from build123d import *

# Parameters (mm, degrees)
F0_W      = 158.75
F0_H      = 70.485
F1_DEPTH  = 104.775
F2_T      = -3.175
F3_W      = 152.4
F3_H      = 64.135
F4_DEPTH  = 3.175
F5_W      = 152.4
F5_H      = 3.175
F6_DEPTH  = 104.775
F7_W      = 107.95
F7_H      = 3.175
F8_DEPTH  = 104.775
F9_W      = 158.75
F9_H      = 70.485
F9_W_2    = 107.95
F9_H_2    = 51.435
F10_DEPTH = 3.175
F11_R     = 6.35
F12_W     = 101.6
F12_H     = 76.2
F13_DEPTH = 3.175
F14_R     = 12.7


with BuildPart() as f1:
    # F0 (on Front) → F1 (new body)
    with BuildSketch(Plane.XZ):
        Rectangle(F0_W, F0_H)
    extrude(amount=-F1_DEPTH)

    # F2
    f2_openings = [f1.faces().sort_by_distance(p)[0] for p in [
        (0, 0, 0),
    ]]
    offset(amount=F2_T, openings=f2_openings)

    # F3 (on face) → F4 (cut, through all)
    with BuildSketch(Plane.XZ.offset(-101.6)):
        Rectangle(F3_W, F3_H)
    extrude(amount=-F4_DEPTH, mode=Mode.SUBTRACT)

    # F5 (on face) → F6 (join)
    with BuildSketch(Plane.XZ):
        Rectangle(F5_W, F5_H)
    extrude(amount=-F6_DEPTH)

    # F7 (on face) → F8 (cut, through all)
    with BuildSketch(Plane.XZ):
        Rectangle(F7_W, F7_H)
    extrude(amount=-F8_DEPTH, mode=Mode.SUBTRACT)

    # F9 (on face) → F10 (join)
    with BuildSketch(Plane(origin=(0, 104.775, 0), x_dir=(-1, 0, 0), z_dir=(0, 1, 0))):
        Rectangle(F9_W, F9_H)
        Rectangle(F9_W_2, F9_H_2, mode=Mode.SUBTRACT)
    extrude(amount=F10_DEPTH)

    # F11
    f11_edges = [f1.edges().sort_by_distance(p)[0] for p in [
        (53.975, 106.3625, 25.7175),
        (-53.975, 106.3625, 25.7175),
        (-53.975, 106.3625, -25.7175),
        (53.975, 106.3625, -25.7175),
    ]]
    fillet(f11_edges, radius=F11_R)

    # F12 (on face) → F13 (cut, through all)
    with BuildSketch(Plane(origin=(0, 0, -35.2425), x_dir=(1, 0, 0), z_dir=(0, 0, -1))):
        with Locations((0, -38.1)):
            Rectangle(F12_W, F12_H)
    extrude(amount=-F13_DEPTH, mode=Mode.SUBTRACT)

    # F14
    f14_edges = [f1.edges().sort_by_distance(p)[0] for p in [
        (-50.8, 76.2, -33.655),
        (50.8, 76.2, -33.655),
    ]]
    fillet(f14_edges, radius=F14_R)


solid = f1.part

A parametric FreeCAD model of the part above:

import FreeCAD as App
import Part
import Sketcher
from FreeCAD import Vector
Q = App.Units.Quantity


def edges_at(feature, points):
    """Names of the edges that pass closest to the given points."""
    edges = feature.Shape.Edges
    near = lambda p: min(range(len(edges)), key=lambda i: edges[i].distToShape(Part.Vertex(*p))[0])
    return sorted({f"Edge{near(p) + 1}" for p in points})


def faces_at(feature, points):
    """Names of the faces that lie closest to the given points."""
    faces = feature.Shape.Faces
    near = lambda p: min(range(len(faces)), key=lambda i: faces[i].distToShape(Part.Vertex(*p))[0])
    return sorted({f"Face{near(p) + 1}" for p in points})

doc = App.newDocument("Part")
body = doc.addObject("PartDesign::Body", "Body")

# Sketch on XZ plane
sketch1 = body.newObject("Sketcher::SketchObject", "Sketch")
sketch1.AttachmentSupport = (doc.getObject("XZ_Plane"), [""])
sketch1.MapMode = "FlatFace"
sketch1.addGeometry(Part.LineSegment(Vector(-79.375, 35.2425, 0), Vector(-79.375, -35.2425, 0)), False)
sketch1.addGeometry(Part.LineSegment(Vector(-79.375, -35.2425, 0), Vector(79.375, -35.2425, 0)), False)
sketch1.addGeometry(Part.LineSegment(Vector(79.375, -35.2425, 0), Vector(79.375, 35.2425, 0)), False)
sketch1.addGeometry(Part.LineSegment(Vector(79.375, 35.2425, 0), Vector(-79.375, 35.2425, 0)), False)
sketch1.addConstraint(Sketcher.Constraint("Coincident", 0, 2, 1, 1))
sketch1.addConstraint(Sketcher.Constraint("Coincident", 1, 2, 2, 1))
sketch1.addConstraint(Sketcher.Constraint("Coincident", 2, 2, 3, 1))
sketch1.addConstraint(Sketcher.Constraint("Coincident", 3, 2, 0, 1))
sketch1.addConstraint(Sketcher.Constraint("Vertical", 0))
sketch1.addConstraint(Sketcher.Constraint("Horizontal", 1))
sketch1.addConstraint(Sketcher.Constraint("Vertical", 2))
sketch1.addConstraint(Sketcher.Constraint("Horizontal", 3))
sketch1.addConstraint(Sketcher.Constraint("Symmetric", 0, 2, 2, 2, -1, 1))
sketch1.addConstraint(Sketcher.Constraint("DistanceX", 1, 1, 1, 2, Q("6.25 in")))
sketch1.addConstraint(Sketcher.Constraint("DistanceY", 0, 2, 0, 1, Q("2.775 in")))
pad1 = body.newObject("PartDesign::Pad", "Pad")
pad1.Profile = sketch1
pad1.Length = Q("4.125 in")
pad1.Reversed = True
doc.recompute()

thickness = body.newObject("PartDesign::Thickness", "Thickness")
thickness.Base = (pad1, faces_at(pad1, [(0, 0, 0)]))
thickness.Value = Q("0.125 in")
thickness.Reversed = True
thickness.Join = "Arc"

# Sketch on XZ plane
sketch2 = body.newObject("Sketcher::SketchObject", "Sketch001")
sketch2.AttachmentSupport = (doc.getObject("XZ_Plane"), [""])
sketch2.MapMode = "FlatFace"
sketch2.AttachmentOffset = App.Placement(Vector(0, 0, -4 * 25.4), App.Rotation())
sketch2.addGeometry(Part.LineSegment(Vector(-76.2, 32.0675, 0), Vector(-76.2, -32.0675, 0)), False)
sketch2.addGeometry(Part.LineSegment(Vector(-76.2, -32.0675, 0), Vector(76.2, -32.0675, 0)), False)
sketch2.addGeometry(Part.LineSegment(Vector(76.2, -32.0675, 0), Vector(76.2, 32.0675, 0)), False)
sketch2.addGeometry(Part.LineSegment(Vector(76.2, 32.0675, 0), Vector(-76.2, 32.0675, 0)), False)
sketch2.addConstraint(Sketcher.Constraint("Coincident", 0, 2, 1, 1))
sketch2.addConstraint(Sketcher.Constraint("Coincident", 1, 2, 2, 1))
sketch2.addConstraint(Sketcher.Constraint("Coincident", 2, 2, 3, 1))
sketch2.addConstraint(Sketcher.Constraint("Coincident", 3, 2, 0, 1))
sketch2.addConstraint(Sketcher.Constraint("Vertical", 0))
sketch2.addConstraint(Sketcher.Constraint("Horizontal", 1))
sketch2.addConstraint(Sketcher.Constraint("Vertical", 2))
sketch2.addConstraint(Sketcher.Constraint("Horizontal", 3))
sketch2.addConstraint(Sketcher.Constraint("Symmetric", 0, 2, 2, 2, -1, 1))
sketch2.addConstraint(Sketcher.Constraint("DistanceX", 1, 1, 1, 2, Q("6 in")))
sketch2.addConstraint(Sketcher.Constraint("DistanceY", 0, 2, 0, 1, Q("2.525 in")))
pocket1 = body.newObject("PartDesign::Pocket", "Pocket")
pocket1.Profile = sketch2
pocket1.Type = "ThroughAll"

# Sketch on XZ plane
sketch3 = body.newObject("Sketcher::SketchObject", "Sketch002")
sketch3.AttachmentSupport = (doc.getObject("XZ_Plane"), [""])
sketch3.MapMode = "FlatFace"
sketch3.addGeometry(Part.LineSegment(Vector(-76.2, 1.5875, 0), Vector(-76.2, -1.5875, 0)), False)
sketch3.addGeometry(Part.LineSegment(Vector(-76.2, -1.5875, 0), Vector(76.2, -1.5875, 0)), False)
sketch3.addGeometry(Part.LineSegment(Vector(76.2, -1.5875, 0), Vector(76.2, 1.5875, 0)), False)
sketch3.addGeometry(Part.LineSegment(Vector(76.2, 1.5875, 0), Vector(-76.2, 1.5875, 0)), False)
sketch3.addConstraint(Sketcher.Constraint("Coincident", 0, 2, 1, 1))
sketch3.addConstraint(Sketcher.Constraint("Coincident", 1, 2, 2, 1))
sketch3.addConstraint(Sketcher.Constraint("Coincident", 2, 2, 3, 1))
sketch3.addConstraint(Sketcher.Constraint("Coincident", 3, 2, 0, 1))
sketch3.addConstraint(Sketcher.Constraint("Vertical", 0))
sketch3.addConstraint(Sketcher.Constraint("Horizontal", 1))
sketch3.addConstraint(Sketcher.Constraint("Vertical", 2))
sketch3.addConstraint(Sketcher.Constraint("Horizontal", 3))
sketch3.addConstraint(Sketcher.Constraint("Symmetric", 0, 2, 2, 2, -1, 1))
sketch3.addConstraint(Sketcher.Constraint("DistanceX", 1, 1, 1, 2, Q("6 in")))
sketch3.addConstraint(Sketcher.Constraint("DistanceY", 0, 2, 0, 1, Q("0.125 in")))
pad2 = body.newObject("PartDesign::Pad", "Pad001")
pad2.Profile = sketch3
pad2.Length = Q("4.125 in")
pad2.Reversed = True

# Sketch on XZ plane
sketch4 = body.newObject("Sketcher::SketchObject", "Sketch003")
sketch4.AttachmentSupport = (doc.getObject("XZ_Plane"), [""])
sketch4.MapMode = "FlatFace"
sketch4.addGeometry(Part.LineSegment(Vector(-53.975, 1.5875, 0), Vector(-53.975, -1.5875, 0)), False)
sketch4.addGeometry(Part.LineSegment(Vector(-53.975, -1.5875, 0), Vector(53.975, -1.5875, 0)), False)
sketch4.addGeometry(Part.LineSegment(Vector(53.975, -1.5875, 0), Vector(53.975, 1.5875, 0)), False)
sketch4.addGeometry(Part.LineSegment(Vector(53.975, 1.5875, 0), Vector(-53.975, 1.5875, 0)), False)
sketch4.addConstraint(Sketcher.Constraint("Coincident", 0, 2, 1, 1))
sketch4.addConstraint(Sketcher.Constraint("Coincident", 1, 2, 2, 1))
sketch4.addConstraint(Sketcher.Constraint("Coincident", 2, 2, 3, 1))
sketch4.addConstraint(Sketcher.Constraint("Coincident", 3, 2, 0, 1))
sketch4.addConstraint(Sketcher.Constraint("Vertical", 0))
sketch4.addConstraint(Sketcher.Constraint("Horizontal", 1))
sketch4.addConstraint(Sketcher.Constraint("Vertical", 2))
sketch4.addConstraint(Sketcher.Constraint("Horizontal", 3))
sketch4.addConstraint(Sketcher.Constraint("Symmetric", 0, 2, 2, 2, -1, 1))
sketch4.addConstraint(Sketcher.Constraint("DistanceX", 1, 1, 1, 2, Q("4.25 in")))
sketch4.addConstraint(Sketcher.Constraint("DistanceY", 0, 2, 0, 1, Q("0.125 in")))
pocket2 = body.newObject("PartDesign::Pocket", "Pocket001")
pocket2.Profile = sketch4
pocket2.Type = "ThroughAll"

# Sketch on XZ plane
sketch5 = body.newObject("Sketcher::SketchObject", "Sketch004")
sketch5.AttachmentSupport = (doc.getObject("XZ_Plane"), [""])
sketch5.MapMode = "FlatFace"
sketch5.AttachmentOffset = App.Placement(Vector(0, 0, -4.125 * 25.4), App.Rotation())
sketch5.addGeometry(Part.LineSegment(Vector(79.375, 35.2425, 0), Vector(79.375, -35.2425, 0)), False)
sketch5.addGeometry(Part.LineSegment(Vector(79.375, -35.2425, 0), Vector(-79.375, -35.2425, 0)), False)
sketch5.addGeometry(Part.LineSegment(Vector(-79.375, -35.2425, 0), Vector(-79.375, 35.2425, 0)), False)
sketch5.addGeometry(Part.LineSegment(Vector(-79.375, 35.2425, 0), Vector(79.375, 35.2425, 0)), False)
sketch5.addGeometry(Part.LineSegment(Vector(-53.975, -25.7175, 0), Vector(53.975, -25.7175, 0)), False)
sketch5.addGeometry(Part.LineSegment(Vector(53.975, -25.7175, 0), Vector(53.975, 25.7175, 0)), False)
sketch5.addGeometry(Part.LineSegment(Vector(53.975, 25.7175, 0), Vector(-53.975, 25.7175, 0)), False)
sketch5.addGeometry(Part.LineSegment(Vector(-53.975, 25.7175, 0), Vector(-53.975, -25.7175, 0)), False)
sketch5.addConstraint(Sketcher.Constraint("Coincident", 0, 2, 1, 1))
sketch5.addConstraint(Sketcher.Constraint("Coincident", 1, 2, 2, 1))
sketch5.addConstraint(Sketcher.Constraint("Coincident", 2, 2, 3, 1))
sketch5.addConstraint(Sketcher.Constraint("Coincident", 3, 2, 0, 1))
sketch5.addConstraint(Sketcher.Constraint("Coincident", 4, 2, 5, 1))
sketch5.addConstraint(Sketcher.Constraint("Coincident", 5, 2, 6, 1))
sketch5.addConstraint(Sketcher.Constraint("Coincident", 6, 2, 7, 1))
sketch5.addConstraint(Sketcher.Constraint("Coincident", 7, 2, 4, 1))
sketch5.addConstraint(Sketcher.Constraint("Vertical", 0))
sketch5.addConstraint(Sketcher.Constraint("Horizontal", 1))
sketch5.addConstraint(Sketcher.Constraint("Vertical", 2))
sketch5.addConstraint(Sketcher.Constraint("Horizontal", 3))
sketch5.addConstraint(Sketcher.Constraint("Horizontal", 4))
sketch5.addConstraint(Sketcher.Constraint("Vertical", 5))
sketch5.addConstraint(Sketcher.Constraint("Horizontal", 6))
sketch5.addConstraint(Sketcher.Constraint("Vertical", 7))
sketch5.addConstraint(Sketcher.Constraint("Symmetric", 0, 2, 2, 2, -1, 1))
sketch5.addConstraint(Sketcher.Constraint("Symmetric", 4, 2, 6, 2, -1, 1))
sketch5.addConstraint(Sketcher.Constraint("DistanceX", 4, 2, 0, 2, Q("1 in")))
sketch5.addConstraint(Sketcher.Constraint("DistanceX", 1, 2, 1, 1, Q("6.25 in")))
sketch5.addConstraint(Sketcher.Constraint("DistanceY", 4, 2, 3, 2, Q("2.4 in")))
sketch5.addConstraint(Sketcher.Constraint("DistanceY", 0, 2, 0, 1, Q("2.775 in")))
pad3 = body.newObject("PartDesign::Pad", "Pad002")
pad3.Profile = sketch5
pad3.Length = Q("0.125 in")
pad3.Reversed = True
doc.recompute()

fillet = body.newObject("PartDesign::Fillet", "Fillet")
fillet.Base = (pad3, edges_at(pad3, [
    (53.975, 106.362, 25.718),
    (-53.975, 106.362, 25.718),
    (-53.975, 106.362, -25.718),
    (53.975, 106.362, -25.718),
]))
fillet.Radius = Q("0.25 in")

# Sketch on XY plane
sketch6 = body.newObject("Sketcher::SketchObject", "Sketch005")
sketch6.AttachmentSupport = (doc.getObject("XY_Plane"), [""])
sketch6.MapMode = "FlatFace"
sketch6.AttachmentOffset = App.Placement(Vector(0, 0, -1.3875 * 25.4), App.Rotation())
sketch6.addGeometry(Part.LineSegment(Vector(-50.8, 0, 0), Vector(-50.8, 76.2, 0)), False)
sketch6.addGeometry(Part.LineSegment(Vector(-50.8, 76.2, 0), Vector(50.8, 76.2, 0)), False)
sketch6.addGeometry(Part.LineSegment(Vector(50.8, 76.2, 0), Vector(50.8, 0, 0)), False)
sketch6.addGeometry(Part.LineSegment(Vector(50.8, 0, 0), Vector(-50.8, 0, 0)), False)
sketch6.addConstraint(Sketcher.Constraint("Coincident", 0, 2, 1, 1))
sketch6.addConstraint(Sketcher.Constraint("Coincident", 1, 2, 2, 1))
sketch6.addConstraint(Sketcher.Constraint("Coincident", 2, 2, 3, 1))
sketch6.addConstraint(Sketcher.Constraint("Coincident", 3, 2, 0, 1))
sketch6.addConstraint(Sketcher.Constraint("Vertical", 0))
sketch6.addConstraint(Sketcher.Constraint("Horizontal", 1))
sketch6.addConstraint(Sketcher.Constraint("Vertical", 2))
sketch6.addConstraint(Sketcher.Constraint("Horizontal", 3))
sketch6.addConstraint(Sketcher.Constraint("Symmetric", 2, 2, 3, 2, -1, 1))
sketch6.addConstraint(Sketcher.Constraint("DistanceX", 1, 1, 1, 2, Q("4 in")))
sketch6.addConstraint(Sketcher.Constraint("DistanceY", 0, 1, 0, 2, Q("3 in")))
pocket3 = body.newObject("PartDesign::Pocket", "Pocket002")
pocket3.Profile = sketch6
pocket3.Length = Q("0.125 in")
pocket3.Reversed = True
doc.recompute()

fillet2 = body.newObject("PartDesign::Fillet", "Fillet001")
fillet2.Base = (pocket3, edges_at(pocket3, [(-50.8, 76.2, -33.655), (50.8, 76.2, -33.655)]))
fillet2.Radius = Q("0.5 in")

doc.recompute()
